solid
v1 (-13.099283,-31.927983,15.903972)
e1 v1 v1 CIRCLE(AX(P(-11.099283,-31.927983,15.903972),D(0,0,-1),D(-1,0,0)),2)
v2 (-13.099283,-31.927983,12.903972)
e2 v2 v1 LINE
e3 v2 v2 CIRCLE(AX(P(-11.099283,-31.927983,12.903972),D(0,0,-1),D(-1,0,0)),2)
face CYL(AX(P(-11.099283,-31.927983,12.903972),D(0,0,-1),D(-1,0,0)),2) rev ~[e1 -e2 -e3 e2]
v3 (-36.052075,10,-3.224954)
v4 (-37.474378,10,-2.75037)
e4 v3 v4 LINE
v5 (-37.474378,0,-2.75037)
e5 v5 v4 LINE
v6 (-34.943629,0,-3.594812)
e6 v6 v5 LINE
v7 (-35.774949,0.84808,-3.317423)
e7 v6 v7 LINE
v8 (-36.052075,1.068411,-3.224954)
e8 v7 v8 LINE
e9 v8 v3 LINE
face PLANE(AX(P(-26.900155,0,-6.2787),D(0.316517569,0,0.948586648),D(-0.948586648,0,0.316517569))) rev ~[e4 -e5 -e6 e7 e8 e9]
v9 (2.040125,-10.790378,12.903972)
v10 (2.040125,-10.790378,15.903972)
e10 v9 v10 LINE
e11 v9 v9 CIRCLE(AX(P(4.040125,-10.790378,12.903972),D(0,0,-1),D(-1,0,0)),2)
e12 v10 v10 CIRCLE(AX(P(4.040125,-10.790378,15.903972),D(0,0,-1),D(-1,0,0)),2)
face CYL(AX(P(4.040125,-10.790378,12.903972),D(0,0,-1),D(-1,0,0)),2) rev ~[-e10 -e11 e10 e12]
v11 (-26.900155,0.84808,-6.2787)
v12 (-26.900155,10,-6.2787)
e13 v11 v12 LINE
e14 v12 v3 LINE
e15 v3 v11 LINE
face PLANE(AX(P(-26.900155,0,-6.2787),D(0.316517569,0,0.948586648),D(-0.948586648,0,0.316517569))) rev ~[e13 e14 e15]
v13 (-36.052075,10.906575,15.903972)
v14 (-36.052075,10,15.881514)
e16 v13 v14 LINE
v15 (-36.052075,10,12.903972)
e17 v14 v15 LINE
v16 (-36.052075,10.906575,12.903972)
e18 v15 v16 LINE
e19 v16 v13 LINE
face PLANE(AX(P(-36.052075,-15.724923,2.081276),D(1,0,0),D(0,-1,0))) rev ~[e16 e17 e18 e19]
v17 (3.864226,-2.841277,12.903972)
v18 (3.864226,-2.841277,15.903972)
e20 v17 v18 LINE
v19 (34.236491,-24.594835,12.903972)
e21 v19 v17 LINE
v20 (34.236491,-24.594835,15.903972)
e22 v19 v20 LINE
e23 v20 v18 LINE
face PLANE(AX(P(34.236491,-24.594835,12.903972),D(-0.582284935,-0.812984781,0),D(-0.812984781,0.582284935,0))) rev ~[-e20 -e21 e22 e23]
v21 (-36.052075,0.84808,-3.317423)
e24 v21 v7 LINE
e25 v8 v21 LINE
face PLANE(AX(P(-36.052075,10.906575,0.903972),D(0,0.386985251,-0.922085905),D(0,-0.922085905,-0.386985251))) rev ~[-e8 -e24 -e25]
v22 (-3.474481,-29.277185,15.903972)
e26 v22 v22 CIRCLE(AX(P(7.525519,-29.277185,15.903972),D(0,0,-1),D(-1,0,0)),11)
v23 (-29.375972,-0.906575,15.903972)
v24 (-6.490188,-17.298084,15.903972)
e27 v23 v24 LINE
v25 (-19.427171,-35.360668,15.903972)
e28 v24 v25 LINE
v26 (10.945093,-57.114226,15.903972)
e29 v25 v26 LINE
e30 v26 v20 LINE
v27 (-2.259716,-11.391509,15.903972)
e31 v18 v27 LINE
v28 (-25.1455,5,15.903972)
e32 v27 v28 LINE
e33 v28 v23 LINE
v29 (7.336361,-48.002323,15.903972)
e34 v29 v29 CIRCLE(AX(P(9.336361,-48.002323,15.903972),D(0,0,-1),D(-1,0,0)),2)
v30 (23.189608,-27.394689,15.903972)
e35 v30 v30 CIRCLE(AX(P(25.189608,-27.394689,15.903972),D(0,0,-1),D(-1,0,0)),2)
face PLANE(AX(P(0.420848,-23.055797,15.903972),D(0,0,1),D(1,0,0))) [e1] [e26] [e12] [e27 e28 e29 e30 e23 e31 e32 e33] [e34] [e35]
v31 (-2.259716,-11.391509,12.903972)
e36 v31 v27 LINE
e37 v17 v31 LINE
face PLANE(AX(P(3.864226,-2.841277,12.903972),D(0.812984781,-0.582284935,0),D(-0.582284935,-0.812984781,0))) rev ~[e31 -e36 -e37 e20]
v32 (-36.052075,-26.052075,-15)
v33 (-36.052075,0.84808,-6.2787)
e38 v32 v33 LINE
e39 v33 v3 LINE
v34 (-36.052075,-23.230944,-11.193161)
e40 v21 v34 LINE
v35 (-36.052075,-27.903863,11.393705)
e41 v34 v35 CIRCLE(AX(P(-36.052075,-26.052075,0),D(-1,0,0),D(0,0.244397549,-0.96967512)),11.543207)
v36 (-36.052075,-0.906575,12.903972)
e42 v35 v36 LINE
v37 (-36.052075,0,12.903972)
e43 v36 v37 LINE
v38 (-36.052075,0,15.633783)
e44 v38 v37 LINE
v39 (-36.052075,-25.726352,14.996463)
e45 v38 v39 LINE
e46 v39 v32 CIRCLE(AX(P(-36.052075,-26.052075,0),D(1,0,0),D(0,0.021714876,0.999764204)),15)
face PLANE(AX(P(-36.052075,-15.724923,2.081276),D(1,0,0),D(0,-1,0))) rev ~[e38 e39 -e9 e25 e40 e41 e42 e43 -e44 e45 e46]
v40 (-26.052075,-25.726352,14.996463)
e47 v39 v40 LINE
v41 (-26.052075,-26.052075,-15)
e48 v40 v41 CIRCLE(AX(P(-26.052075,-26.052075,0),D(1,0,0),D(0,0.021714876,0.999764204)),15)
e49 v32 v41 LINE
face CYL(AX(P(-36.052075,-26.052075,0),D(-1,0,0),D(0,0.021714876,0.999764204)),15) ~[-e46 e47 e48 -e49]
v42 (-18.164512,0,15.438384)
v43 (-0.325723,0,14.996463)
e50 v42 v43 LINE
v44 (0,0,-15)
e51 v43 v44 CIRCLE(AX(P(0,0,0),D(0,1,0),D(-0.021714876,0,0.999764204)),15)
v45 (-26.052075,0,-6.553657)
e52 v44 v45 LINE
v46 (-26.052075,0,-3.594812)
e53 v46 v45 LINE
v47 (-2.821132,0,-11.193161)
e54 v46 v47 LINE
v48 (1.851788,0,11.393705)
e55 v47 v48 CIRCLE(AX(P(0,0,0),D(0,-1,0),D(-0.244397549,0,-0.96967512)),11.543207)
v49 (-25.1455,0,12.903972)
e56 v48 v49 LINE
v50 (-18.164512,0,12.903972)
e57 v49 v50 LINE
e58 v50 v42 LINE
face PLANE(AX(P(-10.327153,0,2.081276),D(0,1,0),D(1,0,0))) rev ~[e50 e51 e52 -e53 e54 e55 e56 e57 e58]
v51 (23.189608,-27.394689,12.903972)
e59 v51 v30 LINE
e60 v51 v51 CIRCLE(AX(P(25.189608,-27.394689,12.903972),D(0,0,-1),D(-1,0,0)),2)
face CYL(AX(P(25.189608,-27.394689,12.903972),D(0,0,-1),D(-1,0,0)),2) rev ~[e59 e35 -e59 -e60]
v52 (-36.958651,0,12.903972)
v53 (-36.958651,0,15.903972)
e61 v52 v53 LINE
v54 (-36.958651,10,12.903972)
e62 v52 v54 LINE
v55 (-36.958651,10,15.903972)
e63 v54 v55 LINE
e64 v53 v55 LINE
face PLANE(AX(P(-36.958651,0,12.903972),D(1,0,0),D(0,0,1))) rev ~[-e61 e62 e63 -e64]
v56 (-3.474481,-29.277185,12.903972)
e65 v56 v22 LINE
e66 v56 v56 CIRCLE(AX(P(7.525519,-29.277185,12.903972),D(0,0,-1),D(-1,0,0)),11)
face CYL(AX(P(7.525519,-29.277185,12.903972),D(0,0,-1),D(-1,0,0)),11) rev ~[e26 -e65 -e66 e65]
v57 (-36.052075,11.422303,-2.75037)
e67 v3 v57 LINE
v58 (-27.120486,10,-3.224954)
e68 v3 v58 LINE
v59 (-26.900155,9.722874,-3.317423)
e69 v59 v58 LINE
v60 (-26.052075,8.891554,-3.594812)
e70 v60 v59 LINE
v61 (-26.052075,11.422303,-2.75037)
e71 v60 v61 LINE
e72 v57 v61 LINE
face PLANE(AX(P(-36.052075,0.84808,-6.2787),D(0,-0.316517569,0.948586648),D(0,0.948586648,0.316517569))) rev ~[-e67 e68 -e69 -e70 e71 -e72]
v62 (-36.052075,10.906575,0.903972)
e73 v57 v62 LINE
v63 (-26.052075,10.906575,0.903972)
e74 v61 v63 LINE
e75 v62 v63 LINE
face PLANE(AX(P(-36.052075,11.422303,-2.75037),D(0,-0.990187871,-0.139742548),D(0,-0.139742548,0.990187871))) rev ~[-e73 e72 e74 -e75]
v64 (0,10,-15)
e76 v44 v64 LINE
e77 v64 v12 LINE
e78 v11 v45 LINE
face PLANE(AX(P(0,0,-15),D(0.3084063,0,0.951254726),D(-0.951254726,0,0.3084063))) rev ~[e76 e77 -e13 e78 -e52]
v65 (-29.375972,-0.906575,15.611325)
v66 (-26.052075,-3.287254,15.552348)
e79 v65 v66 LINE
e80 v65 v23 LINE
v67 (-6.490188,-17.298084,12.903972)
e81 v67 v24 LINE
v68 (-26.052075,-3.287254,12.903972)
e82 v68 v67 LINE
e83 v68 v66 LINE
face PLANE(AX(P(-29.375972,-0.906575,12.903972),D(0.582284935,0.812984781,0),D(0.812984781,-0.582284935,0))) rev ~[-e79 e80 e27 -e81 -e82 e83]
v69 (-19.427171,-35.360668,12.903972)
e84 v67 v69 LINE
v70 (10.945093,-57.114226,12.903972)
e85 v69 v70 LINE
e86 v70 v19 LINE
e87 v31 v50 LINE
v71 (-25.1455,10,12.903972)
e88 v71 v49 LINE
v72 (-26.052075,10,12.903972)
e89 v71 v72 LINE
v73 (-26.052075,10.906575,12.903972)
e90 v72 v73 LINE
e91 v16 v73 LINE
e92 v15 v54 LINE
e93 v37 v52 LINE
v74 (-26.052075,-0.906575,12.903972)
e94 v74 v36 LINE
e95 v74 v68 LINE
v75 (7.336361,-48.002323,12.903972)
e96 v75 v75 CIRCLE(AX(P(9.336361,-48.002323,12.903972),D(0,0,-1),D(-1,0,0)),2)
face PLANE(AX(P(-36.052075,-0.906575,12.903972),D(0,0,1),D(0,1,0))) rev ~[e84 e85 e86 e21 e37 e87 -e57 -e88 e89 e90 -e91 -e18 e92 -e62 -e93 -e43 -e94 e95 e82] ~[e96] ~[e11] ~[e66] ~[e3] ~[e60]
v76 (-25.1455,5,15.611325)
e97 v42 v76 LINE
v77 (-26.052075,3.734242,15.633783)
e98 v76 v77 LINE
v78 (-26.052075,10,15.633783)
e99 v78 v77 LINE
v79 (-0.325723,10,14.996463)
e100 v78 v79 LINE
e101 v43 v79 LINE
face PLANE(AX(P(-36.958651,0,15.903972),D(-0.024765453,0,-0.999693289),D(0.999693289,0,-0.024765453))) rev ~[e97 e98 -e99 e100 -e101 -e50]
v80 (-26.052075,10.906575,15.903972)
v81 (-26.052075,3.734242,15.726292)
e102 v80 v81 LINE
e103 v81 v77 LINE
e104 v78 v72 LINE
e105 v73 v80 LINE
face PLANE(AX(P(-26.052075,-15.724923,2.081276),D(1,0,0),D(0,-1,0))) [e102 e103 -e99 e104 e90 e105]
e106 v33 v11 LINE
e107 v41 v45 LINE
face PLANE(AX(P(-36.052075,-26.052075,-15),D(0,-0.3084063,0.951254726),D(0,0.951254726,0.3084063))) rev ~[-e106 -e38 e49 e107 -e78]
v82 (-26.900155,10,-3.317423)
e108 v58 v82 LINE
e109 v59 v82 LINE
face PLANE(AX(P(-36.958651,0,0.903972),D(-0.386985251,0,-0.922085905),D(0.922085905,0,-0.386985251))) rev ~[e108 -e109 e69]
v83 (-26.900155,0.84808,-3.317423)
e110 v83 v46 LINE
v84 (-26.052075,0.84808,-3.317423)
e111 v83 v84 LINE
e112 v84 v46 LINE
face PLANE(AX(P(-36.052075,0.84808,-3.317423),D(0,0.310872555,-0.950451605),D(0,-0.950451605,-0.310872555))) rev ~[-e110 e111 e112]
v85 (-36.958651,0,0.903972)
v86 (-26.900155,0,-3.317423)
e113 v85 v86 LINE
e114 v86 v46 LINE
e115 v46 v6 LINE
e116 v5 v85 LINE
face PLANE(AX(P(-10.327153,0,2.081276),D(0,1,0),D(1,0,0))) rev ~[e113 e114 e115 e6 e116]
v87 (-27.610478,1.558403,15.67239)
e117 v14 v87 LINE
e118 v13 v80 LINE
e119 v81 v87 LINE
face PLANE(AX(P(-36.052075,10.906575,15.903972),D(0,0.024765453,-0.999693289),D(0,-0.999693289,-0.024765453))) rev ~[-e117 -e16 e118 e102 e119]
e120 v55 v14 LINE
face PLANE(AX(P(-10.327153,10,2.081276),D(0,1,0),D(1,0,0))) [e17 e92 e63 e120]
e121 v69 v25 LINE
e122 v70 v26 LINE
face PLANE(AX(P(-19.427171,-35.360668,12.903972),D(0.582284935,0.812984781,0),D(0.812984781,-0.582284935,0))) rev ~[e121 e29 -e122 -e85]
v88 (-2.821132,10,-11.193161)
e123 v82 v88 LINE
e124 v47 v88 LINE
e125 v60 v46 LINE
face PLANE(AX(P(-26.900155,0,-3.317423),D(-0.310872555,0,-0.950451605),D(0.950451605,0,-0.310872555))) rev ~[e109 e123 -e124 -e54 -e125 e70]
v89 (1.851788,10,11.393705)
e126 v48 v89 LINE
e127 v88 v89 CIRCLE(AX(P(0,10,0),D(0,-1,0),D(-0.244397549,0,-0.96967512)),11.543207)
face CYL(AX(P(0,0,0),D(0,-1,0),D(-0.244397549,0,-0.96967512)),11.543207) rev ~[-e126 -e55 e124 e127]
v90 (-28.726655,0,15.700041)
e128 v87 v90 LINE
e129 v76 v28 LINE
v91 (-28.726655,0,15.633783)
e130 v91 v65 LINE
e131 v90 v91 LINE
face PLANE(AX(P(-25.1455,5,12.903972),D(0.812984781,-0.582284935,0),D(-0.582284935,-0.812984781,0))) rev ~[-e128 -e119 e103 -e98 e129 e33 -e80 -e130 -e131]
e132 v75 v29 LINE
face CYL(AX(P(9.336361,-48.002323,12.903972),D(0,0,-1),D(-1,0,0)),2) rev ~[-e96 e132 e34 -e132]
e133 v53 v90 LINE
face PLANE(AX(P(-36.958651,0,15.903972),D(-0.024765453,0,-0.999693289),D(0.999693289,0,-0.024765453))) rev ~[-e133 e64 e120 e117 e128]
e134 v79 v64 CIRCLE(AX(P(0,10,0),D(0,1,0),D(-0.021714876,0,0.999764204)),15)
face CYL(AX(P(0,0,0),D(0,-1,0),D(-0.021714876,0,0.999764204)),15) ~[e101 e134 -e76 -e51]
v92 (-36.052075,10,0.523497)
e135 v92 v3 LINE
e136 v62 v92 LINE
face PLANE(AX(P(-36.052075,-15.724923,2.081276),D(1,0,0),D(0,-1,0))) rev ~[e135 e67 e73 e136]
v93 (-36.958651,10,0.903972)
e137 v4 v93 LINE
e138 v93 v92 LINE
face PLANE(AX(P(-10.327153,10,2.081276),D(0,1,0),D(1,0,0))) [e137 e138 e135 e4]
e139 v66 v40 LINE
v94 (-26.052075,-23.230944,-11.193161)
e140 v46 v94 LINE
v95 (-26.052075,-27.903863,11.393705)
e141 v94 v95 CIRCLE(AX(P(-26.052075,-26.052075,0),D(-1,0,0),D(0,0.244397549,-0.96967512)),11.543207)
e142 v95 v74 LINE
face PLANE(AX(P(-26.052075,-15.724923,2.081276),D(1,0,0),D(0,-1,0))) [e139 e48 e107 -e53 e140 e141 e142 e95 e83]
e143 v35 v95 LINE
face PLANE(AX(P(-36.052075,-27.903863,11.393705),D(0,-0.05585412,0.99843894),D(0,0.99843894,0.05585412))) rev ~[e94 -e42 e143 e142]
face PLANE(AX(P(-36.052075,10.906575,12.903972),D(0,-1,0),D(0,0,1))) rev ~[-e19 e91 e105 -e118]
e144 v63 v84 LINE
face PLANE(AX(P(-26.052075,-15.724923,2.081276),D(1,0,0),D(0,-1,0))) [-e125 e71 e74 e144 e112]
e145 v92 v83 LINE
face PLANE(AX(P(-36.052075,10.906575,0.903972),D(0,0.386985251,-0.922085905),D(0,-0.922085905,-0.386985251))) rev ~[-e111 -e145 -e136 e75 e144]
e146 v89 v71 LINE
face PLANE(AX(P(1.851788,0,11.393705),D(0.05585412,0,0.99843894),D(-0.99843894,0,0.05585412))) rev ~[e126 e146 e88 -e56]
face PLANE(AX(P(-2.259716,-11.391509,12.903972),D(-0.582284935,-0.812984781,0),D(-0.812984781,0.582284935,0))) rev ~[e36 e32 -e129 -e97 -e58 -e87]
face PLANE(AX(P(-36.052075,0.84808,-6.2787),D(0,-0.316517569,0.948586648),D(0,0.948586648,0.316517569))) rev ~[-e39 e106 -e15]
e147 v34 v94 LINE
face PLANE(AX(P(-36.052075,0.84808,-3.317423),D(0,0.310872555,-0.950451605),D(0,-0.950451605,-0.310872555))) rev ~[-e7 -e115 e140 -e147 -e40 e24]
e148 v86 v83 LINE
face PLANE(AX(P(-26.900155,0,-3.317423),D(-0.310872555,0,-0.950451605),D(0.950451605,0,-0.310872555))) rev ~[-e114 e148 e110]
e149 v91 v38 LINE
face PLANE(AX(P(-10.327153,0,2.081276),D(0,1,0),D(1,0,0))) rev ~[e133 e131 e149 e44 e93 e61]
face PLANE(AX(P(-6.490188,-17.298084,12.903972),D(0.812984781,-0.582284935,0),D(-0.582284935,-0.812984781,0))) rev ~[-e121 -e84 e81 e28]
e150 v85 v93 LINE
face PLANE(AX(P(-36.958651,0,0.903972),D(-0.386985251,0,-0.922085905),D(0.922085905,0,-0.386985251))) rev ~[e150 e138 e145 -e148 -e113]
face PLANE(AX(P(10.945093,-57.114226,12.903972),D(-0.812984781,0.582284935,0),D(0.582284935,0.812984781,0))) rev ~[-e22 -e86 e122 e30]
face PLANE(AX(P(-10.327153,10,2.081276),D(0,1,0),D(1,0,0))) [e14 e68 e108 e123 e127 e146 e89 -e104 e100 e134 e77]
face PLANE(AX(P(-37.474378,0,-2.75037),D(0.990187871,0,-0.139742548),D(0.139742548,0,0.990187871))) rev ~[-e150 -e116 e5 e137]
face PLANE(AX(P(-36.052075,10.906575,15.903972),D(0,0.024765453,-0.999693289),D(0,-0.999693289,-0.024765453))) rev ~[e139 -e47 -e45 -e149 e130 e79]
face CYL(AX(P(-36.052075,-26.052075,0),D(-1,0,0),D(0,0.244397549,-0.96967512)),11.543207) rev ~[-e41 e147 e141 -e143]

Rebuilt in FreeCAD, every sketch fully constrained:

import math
import FreeCAD as App
import Part
import Sketcher
from FreeCAD import Vector


def add_polygon(sketch, points):
    """Adds a closed chain of lines whose ends are joined by coincident constraints."""
    first, n = sketch.GeometryCount, len(points)
    for a, b in zip(points, points[1:] + points[:1]):
        sketch.addGeometry(Part.LineSegment(App.Vector(*a, 0), App.Vector(*b, 0)), False)
    for i in range(n):
        sketch.addConstraint(Sketcher.Constraint("Coincident", first + i, 2, first + (i + 1) % n, 1))

doc = App.newDocument("Part")
body = doc.addObject("PartDesign::Body", "Body")

sketch1 = body.newObject("Sketcher::SketchObject", "Sketch")
sketch1.AttachmentSupport = (doc.getObject("XZ_Plane"), [""])
sketch1.MapMode = "FlatFace"
sketch1.addGeometry([
    Part.LineSegment(Vector(0, -15, 0), Vector(-26.9, -6.3, 0)),
    Part.LineSegment(Vector(-26.9, -6.3, 0), Vector(-37.5, -2.8, 0)),
    Part.LineSegment(Vector(-37.5, -2.8, 0), Vector(-37, 0.9, 0)),
    Part.LineSegment(Vector(-37, 0.9, 0), Vector(-26.9, -3.3, 0)),
    Part.LineSegment(Vector(-26.9, -3.3, 0), Vector(-2.8, -11.2, 0)),
    Part.ArcOfCircle(Part.Circle(Vector(0, 0, 0), Vector(0, 0, 1), 11.5), math.radians(-104), math.radians(81)),
    Part.LineSegment(Vector(1.9, 11.4, 0), Vector(-25.1, 12.9, 0)),
    Part.LineSegment(Vector(-25.1, 12.9, 0), Vector(-37, 12.9, 0)),
    Part.LineSegment(Vector(-37, 12.9, 0), Vector(-37, 15.9, 0)),
    Part.LineSegment(Vector(-37, 15.9, 0), Vector(-0.3, 15, 0)),
    Part.ArcOfCircle(Part.Circle(Vector(0, 0, 0), Vector(0, 0, 1), 15), math.radians(-90), math.radians(91)),
], False)
sketch1.addConstraint([
    Sketcher.Constraint("Coincident", 0, 2, 1, 1),
    Sketcher.Constraint("Coincident", 1, 2, 2, 1),
    Sketcher.Constraint("Coincident", 2, 2, 3, 1),
    Sketcher.Constraint("Coincident", 3, 2, 4, 1),
    Sketcher.Constraint("Coincident", 4, 2, 5, 1),
    Sketcher.Constraint("Coincident", 5, 2, 6, 1),
    Sketcher.Constraint("Coincident", 6, 2, 7, 1),
    Sketcher.Constraint("Coincident", 7, 2, 8, 1),
    Sketcher.Constraint("Coincident", 8, 2, 9, 1),
    Sketcher.Constraint("Coincident", 9, 2, 10, 2),
    Sketcher.Constraint("Coincident", 10, 1, 0, 1),
    Sketcher.Constraint("Horizontal", 7),
    Sketcher.Constraint("Vertical", 8),
    Sketcher.Constraint("Coincident", 5, 3, -1, 1),
    Sketcher.Constraint("Coincident", 10, 3, -1, 1),
    Sketcher.Constraint("PointOnObject", 10, 1, -2),
    Sketcher.Constraint("Vertical", 0, 2, 3, 2),
    Sketcher.Constraint("Vertical", 2, 2, 7, 2),
    Sketcher.Constraint("Radius", 10, 15.0),
    Sketcher.Constraint("DistanceY", 8, 1, 8, 2, 3.0),
    Sketcher.Constraint("DistanceY", 2, 2, 6, 2, 12.0),
    Sketcher.Constraint("Radius", 5, 11.543207),
    Sketcher.Constraint("Distance", 6, 27.039498),
    Sketcher.Constraint("DistanceX", 7, 2, 7, 1, 11.813151),
    Sketcher.Constraint("DistanceY", 0, 2, -1, 1, 6.2787),
    Sketcher.Constraint("DistanceX", 6, 2, -1, 1, 25.1455),
    Sketcher.Constraint("DistanceX", 1, 2, -1, 1, 37.474378),
    Sketcher.Constraint("DistanceY", 1, 2, -1, 1, 2.75037),
    Sketcher.Constraint("DistanceX", 4, 2, -1, 1, 2.821132),
    Sketcher.Constraint("DistanceY", 3, 2, 5, 2, 14.711128),
    Sketcher.Constraint("DistanceX", 9, 2, 5, 2, 2.177511),
    Sketcher.Constraint("DistanceY", 6, 2, 9, 2, 2.092491),
    Sketcher.Constraint("Distance", 0, 28.278604),
])
pad1 = body.newObject("PartDesign::Pad", "Pad")
pad1.Profile = sketch1
pad1.Length = 10
pad1.Reversed = True
doc.recompute()

datumline = body.newObject("PartDesign::Line", "DatumLine")
datumline.Placement = App.Placement(Vector(-31.052075, 5, 0), App.Rotation(Vector(0, 0, 1), Vector(0, 0, -1)))
polarpattern = body.newObject("PartDesign::PolarPattern", "PolarPattern")
polarpattern.Originals = [pad1]
polarpattern.Axis = (datumline, [""])
polarpattern.Angle = 90
polarpattern.Occurrences = 2
body.Tip = polarpattern

sketch2 = body.newObject("Sketcher::SketchObject", "Sketch001")
sketch2.AttachmentSupport = (doc.getObject("XY_Plane"), [""])
sketch2.MapMode = "FlatFace"
sketch2.AttachmentOffset = App.Placement(Vector(0, 0, 12.903972), App.Rotation())
add_polygon(sketch2, [(-29.4, -0.9), (-25.1, 5), (-2.3, -11.4), (3.9, -2.8), (34.2, -24.6), (10.9, -57.1), (-19.4, -35.4), (-6.5, -17.3)])
sketch2.addGeometry(Part.Circle(Vector(-11.1, -31.9, 0), Vector(0, 0, 1), 2), False)
sketch2.addGeometry(Part.Circle(Vector(9.3, -48, 0), Vector(0, 0, 1), 2), False)
sketch2.addGeometry(Part.Circle(Vector(4, -10.8, 0), Vector(0, 0, 1), 2), False)
sketch2.addGeometry(Part.Circle(Vector(7.5, -29.3, 0), Vector(0, 0, 1), 11), False)
sketch2.addGeometry(Part.Circle(Vector(25.2, -27.4, 0), Vector(0, 0, 1), 2), False)
sketch2.addConstraint([
    Sketcher.Constraint("Equal", 8, 9),
    Sketcher.Constraint("Equal", 9, 10),
    Sketcher.Constraint("Equal", 10, 12),
    Sketcher.Constraint("Perpendicular", 0, 1),
    Sketcher.Constraint("Perpendicular", 1, 2),
    Sketcher.Constraint("Perpendicular", 2, 3),
    Sketcher.Constraint("Perpendicular", 3, 4),
    Sketcher.Constraint("Perpendicular", 4, 5),
    Sketcher.Constraint("Perpendicular", 5, 6),
    Sketcher.Constraint("Perpendicular", 6, 7),
    Sketcher.Constraint("Equal", 3, 5),
    Sketcher.Constraint("Diameter", 8, 4.0),
    Sketcher.Constraint("Diameter", 11, 22.0),
    Sketcher.Constraint("Distance", 4, 40.0),
    Sketcher.Constraint("DistanceY", -1, 1, 0, 2, 5.0),
    Sketcher.Constraint("DistanceX", 0, 2, -1, 1, 25.1455),
    Sketcher.Constraint("DistanceX", 8, 3, 11, 3, 18.624802),
    Sketcher.Constraint("DistanceX", 2, 2, 10, 3, 0.175899),
    Sketcher.Constraint("DistanceY", 10, 3, 2, 2, 7.949101),
    Sketcher.Constraint("DistanceY", 8, 3, 6, 2, 14.629898),
    Sketcher.Constraint("DistanceY", 11, 3, 6, 2, 11.9791),
    Sketcher.Constraint("DistanceX", 7, 2, 2, 2, 33.240199),
    Sketcher.Constraint("DistanceY", 2, 2, 7, 2, 1.934701),
    Sketcher.Constraint("DistanceX", -1, 1, 9, 3, 9.336361),
    Sketcher.Constraint("DistanceY", 10, 3, -1, 1, 10.790378),
    Sketcher.Constraint("DistanceX", -1, 1, 11, 3, 7.525519),
    Sketcher.Constraint("DistanceY", 12, 3, -1, 1, 27.394689),
    Sketcher.Constraint("DistanceY", 1, 2, -1, 1, 11.391509),
    Sketcher.Constraint("DistanceX", -1, 1, 3, 2, 34.236491),
    Sketcher.Constraint("DistanceY", 9, 3, 8, 3, 16.074341),
    Sketcher.Constraint("DistanceX", 11, 3, 12, 3, 17.664089),
])
pad2 = body.newObject("PartDesign::Pad", "Pad001")
pad2.Profile = sketch2
pad2.Length = 3

doc.recompute()
